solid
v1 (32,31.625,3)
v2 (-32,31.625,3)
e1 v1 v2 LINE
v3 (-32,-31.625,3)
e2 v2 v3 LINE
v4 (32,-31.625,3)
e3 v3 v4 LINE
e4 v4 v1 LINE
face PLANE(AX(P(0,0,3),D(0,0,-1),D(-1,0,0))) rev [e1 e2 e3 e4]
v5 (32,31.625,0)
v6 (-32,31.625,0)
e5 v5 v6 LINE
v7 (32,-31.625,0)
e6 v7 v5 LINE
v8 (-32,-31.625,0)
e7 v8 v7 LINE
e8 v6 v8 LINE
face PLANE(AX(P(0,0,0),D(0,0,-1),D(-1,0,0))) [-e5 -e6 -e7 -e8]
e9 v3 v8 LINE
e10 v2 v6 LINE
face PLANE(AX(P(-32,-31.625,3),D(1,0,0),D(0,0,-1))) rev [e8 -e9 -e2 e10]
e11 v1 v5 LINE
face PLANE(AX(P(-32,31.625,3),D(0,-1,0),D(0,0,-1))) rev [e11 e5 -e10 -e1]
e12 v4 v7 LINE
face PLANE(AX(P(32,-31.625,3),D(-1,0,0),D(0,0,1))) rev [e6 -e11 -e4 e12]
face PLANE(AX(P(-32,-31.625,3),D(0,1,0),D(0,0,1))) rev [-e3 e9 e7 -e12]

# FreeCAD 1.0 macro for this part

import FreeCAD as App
import Part
import Sketcher
Q = App.Units.Quantity


def add_polygon(sketch, points):
    """Adds a closed chain of lines whose ends are joined by coincident constraints."""
    first, n = sketch.GeometryCount, len(points)
    for a, b in zip(points, points[1:] + points[:1]):
        sketch.addGeometry(Part.LineSegment(App.Vector(*a, 0), App.Vector(*b, 0)), False)
    for i in range(n):
        sketch.addConstraint(Sketcher.Constraint("Coincident", first + i, 2, first + (i + 1) % n, 1))

doc = App.newDocument("Part")
params = doc.addObject("Spreadsheet::Sheet", "Params")
for row, (alias, value) in enumerate([
    ("sketch1_width", "64 mm"),
    ("sketch1_height", "63.25 mm"),
    ("pad1_length", "3 mm"),
], start=1):
    params.set(f"A{row}", alias)
    params.set(f"B{row}", "=" + value)
    params.setAlias(f"B{row}", alias)

body = doc.addObject("PartDesign::Body", "Body")

sketch1 = body.newObject("Sketcher::SketchObject", "Sketch")
sketch1.AttachmentSupport = (doc.getObject("XY_Plane"), [""])
sketch1.MapMode = "FlatFace"
add_polygon(sketch1, [(-32, 32), (-32, -32), (32, -32), (32, 32)])
sketch1.addConstraint([
    Sketcher.Constraint("Vertical", 0),
    Sketcher.Constraint("Horizontal", 1),
    Sketcher.Constraint("Vertical", 2),
    Sketcher.Constraint("Horizontal", 3),
    Sketcher.Constraint("Symmetric", 0, 2, 2, 2, -1, 1),
    Sketcher.Constraint("DistanceX", 1, 1, 1, 2, Q("64 mm")),
    Sketcher.Constraint("DistanceY", 0, 2, 0, 1, Q("63.25 mm")),
])
sketch1.setExpression("Constraints[9]", "Params.sketch1_width")
sketch1.setExpression("Constraints[10]", "Params.sketch1_height")
pad1 = body.newObject("PartDesign::Pad", "Pad")
pad1.Profile = sketch1
pad1.setExpression("Length", "Params.pad1_length")

doc.recompute()
